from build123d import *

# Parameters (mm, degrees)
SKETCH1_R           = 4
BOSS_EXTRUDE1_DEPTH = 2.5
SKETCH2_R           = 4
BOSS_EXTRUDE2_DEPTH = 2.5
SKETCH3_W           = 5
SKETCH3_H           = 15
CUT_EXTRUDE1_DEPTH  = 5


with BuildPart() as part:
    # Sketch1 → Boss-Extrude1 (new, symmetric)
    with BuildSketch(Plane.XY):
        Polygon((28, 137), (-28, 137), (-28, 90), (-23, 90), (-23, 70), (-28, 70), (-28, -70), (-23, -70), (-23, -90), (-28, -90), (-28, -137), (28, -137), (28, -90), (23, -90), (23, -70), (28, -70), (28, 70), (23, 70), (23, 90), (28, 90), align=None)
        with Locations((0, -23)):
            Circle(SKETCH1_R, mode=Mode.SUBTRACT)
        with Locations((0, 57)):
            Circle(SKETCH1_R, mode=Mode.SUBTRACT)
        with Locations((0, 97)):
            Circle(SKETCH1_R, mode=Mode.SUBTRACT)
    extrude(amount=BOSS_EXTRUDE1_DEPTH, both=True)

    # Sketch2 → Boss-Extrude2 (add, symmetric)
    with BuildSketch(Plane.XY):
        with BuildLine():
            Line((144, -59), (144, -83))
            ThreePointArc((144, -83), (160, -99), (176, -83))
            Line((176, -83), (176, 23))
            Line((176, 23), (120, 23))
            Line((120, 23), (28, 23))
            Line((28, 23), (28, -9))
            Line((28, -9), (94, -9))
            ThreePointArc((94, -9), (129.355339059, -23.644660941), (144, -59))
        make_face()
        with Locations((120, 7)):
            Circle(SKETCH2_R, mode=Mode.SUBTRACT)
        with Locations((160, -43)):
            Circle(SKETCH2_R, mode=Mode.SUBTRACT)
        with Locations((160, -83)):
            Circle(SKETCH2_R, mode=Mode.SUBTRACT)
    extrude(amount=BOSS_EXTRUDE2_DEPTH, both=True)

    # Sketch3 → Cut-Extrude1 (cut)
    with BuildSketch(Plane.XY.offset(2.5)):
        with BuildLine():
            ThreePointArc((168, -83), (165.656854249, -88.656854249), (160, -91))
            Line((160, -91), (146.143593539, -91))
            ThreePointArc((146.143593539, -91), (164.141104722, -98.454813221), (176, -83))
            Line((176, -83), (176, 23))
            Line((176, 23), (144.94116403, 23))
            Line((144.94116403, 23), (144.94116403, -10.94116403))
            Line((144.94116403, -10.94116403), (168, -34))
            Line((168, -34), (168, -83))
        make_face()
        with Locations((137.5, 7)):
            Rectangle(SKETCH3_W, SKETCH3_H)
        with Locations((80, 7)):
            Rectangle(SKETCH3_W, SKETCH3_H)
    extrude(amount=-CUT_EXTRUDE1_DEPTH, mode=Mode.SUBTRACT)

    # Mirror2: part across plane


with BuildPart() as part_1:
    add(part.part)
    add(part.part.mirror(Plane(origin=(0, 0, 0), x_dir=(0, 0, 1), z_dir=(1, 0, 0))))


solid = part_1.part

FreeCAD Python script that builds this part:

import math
import FreeCAD as App
import Part
import Sketcher
from FreeCAD import Vector
Q = App.Units.Quantity


def add_polygon(sketch, points):
    """Adds a closed chain of lines whose ends are joined by coincident constraints."""
    first, n = sketch.GeometryCount, len(points)
    for a, b in zip(points, points[1:] + points[:1]):
        sketch.addGeometry(Part.LineSegment(App.Vector(*a, 0), App.Vector(*b, 0)), False)
    for i in range(n):
        sketch.addConstraint(Sketcher.Constraint("Coincident", first + i, 2, first + (i + 1) % n, 1))

doc = App.newDocument("Part")
params = doc.addObject("Spreadsheet::Sheet", "Params")
for row, (alias, value) in enumerate([
    ("sketch1_diameter", "8 mm"),
    ("sketch1_width", "56 mm"),
    ("sketch1_width2", "5 mm"),
    ("sketch1_height", "47 mm"),
    ("sketch1_height2", "20 mm"),
    ("pad1_length", "5 mm"),
    ("sketch2_diameter", "8 mm"),
    ("sketch2_radius", "16 mm"),
    ("sketch2_radius2", "50 mm"),
    ("sketch2_width", "148 mm"),
    ("sketch2_height", "24 mm"),
    ("pad2_length", "5 mm"),
    ("sketch3_radius", "8 mm"),
    ("sketch3_radius2", "16 mm"),
    ("sketch3_width", "5 mm"),
    ("sketch3_height", "106 mm"),
    ("sketch3_height2", "49 mm"),
    ("pocket1_length", "5 mm"),
], start=1):
    params.set(f"A{row}", alias)
    params.set(f"B{row}", "=" + value)
    params.setAlias(f"B{row}", alias)

body = doc.addObject("PartDesign::Body", "Body")

# Sketch on XY plane
sketch1 = doc.addObject("Sketcher::SketchObject", "Sketch")
body.addObject(sketch1)
sketch1.AttachmentSupport = (doc.XY_Plane, [""])
sketch1.MapMode = "FlatFace"
add_polygon(sketch1, [(28, 137), (-28, 137), (-28, 90), (-23, 90), (-23, 70), (-28, 70), (-28, -70), (-23, -70), (-23, -90), (-28, -90), (-28, -137), (28, -137), (28, -90), (23, -90), (23, -70), (28, -70), (28, 70), (23, 70), (23, 90), (28, 90)])  # lines 0-19
sketch1.addGeometry(Part.Circle(Vector(0, -23, 0), Vector(0, 0, 1), 4), False)  # 20
sketch1.addGeometry(Part.Circle(Vector(0, 57, 0), Vector(0, 0, 1), 4), False)  # 21
sketch1.addGeometry(Part.Circle(Vector(0, 97, 0), Vector(0, 0, 1), 4), False)  # 22
sketch1.addConstraint([
    Sketcher.Constraint("Horizontal", 0),
    Sketcher.Constraint("Vertical", 1),
    Sketcher.Constraint("Horizontal", 2),
    Sketcher.Constraint("Vertical", 3),
    Sketcher.Constraint("Horizontal", 4),
    Sketcher.Constraint("Vertical", 5),
    Sketcher.Constraint("Horizontal", 6),
    Sketcher.Constraint("Vertical", 7),
    Sketcher.Constraint("Horizontal", 8),
    Sketcher.Constraint("Vertical", 9),
    Sketcher.Constraint("Horizontal", 10),
    Sketcher.Constraint("Vertical", 11),
    Sketcher.Constraint("Horizontal", 12),
    Sketcher.Constraint("Vertical", 13),
    Sketcher.Constraint("Horizontal", 14),
    Sketcher.Constraint("Vertical", 15),
    Sketcher.Constraint("Horizontal", 16),
    Sketcher.Constraint("Vertical", 17),
    Sketcher.Constraint("Horizontal", 18),
    Sketcher.Constraint("Vertical", 19),
    Sketcher.Constraint("Equal", 20, 21),
    Sketcher.Constraint("Equal", 21, 22),
    Sketcher.Constraint("Symmetric", 0, 2, 10, 2, -1, 1),
    Sketcher.Constraint("Symmetric", 2, 2, 12, 2, -1, 1),
    Sketcher.Constraint("Symmetric", 4, 2, 14, 2, -1, 1),
    Sketcher.Constraint("Symmetric", 6, 2, 16, 2, -1, 1),
    Sketcher.Constraint("Symmetric", 8, 2, 18, 2, -1, 1),
    Sketcher.Constraint("Symmetric", 8, 2, 11, 2, -2),
    Sketcher.Constraint("Symmetric", 6, 2, 13, 2, -2),
    Sketcher.Constraint("PointOnObject", 20, 3, -2),
    Sketcher.Constraint("PointOnObject", 21, 3, -2),
    Sketcher.Constraint("PointOnObject", 22, 3, -2),
    Sketcher.Constraint("Vertical", 1, 2, 4, 2),
    Sketcher.Constraint("Diameter", 20, 8.0),
    Sketcher.Constraint("DistanceX", 0, 2, 0, 1, 56.0),
    Sketcher.Constraint("DistanceX", 2, 1, 2, 2, 5.0),
    Sketcher.Constraint("DistanceY", 1, 2, 1, 1, 47.0),
    Sketcher.Constraint("DistanceY", 3, 2, 3, 1, 20.0),
    Sketcher.Constraint("DistanceY", 5, 2, 5, 1, 140.0),
    Sketcher.Constraint("DistanceY", 20, 3, -1, 1, 23.0),
    Sketcher.Constraint("DistanceY", -1, 1, 21, 3, 57.0),
    Sketcher.Constraint("DistanceY", -1, 1, 22, 3, 97.0),
])
sketch1.setExpression("Constraints[53]", "Params.sketch1_diameter")
sketch1.setExpression("Constraints[54]", "Params.sketch1_width")
sketch1.setExpression("Constraints[55]", "Params.sketch1_width2")
sketch1.setExpression("Constraints[56]", "Params.sketch1_height")
sketch1.setExpression("Constraints[57]", "Params.sketch1_height2")
pad1 = doc.addObject("PartDesign::Pad", "Pad")
body.addObject(pad1)
pad1.Profile = sketch1
pad1.setExpression("Length", "Params.pad1_length")
pad1.Midplane = True

# Sketch on XY plane
sketch2 = doc.addObject("Sketcher::SketchObject", "Sketch001")
body.addObject(sketch2)
sketch2.AttachmentSupport = (doc.XY_Plane, [""])
sketch2.MapMode = "FlatFace"
sketch2.addGeometry([
    Part.LineSegment(Vector(144, -59, 0), Vector(144, -83, 0)),  # 0
    Part.ArcOfCircle(Part.Circle(Vector(160, -83, 0), Vector(0, 0, 1), 16), math.radians(180), math.radians(360)),  # 1
    Part.LineSegment(Vector(176, -83, 0), Vector(176, 23, 0)),  # 2
    Part.LineSegment(Vector(176, 23, 0), Vector(28, 23, 0)),  # 3
    Part.LineSegment(Vector(28, 23, 0), Vector(28, -9, 0)),  # 4
    Part.LineSegment(Vector(28, -9, 0), Vector(94, -9, 0)),  # 5
    Part.ArcOfCircle(Part.Circle(Vector(94, -59, 0), Vector(0, 0, 1), 50), math.radians(0), math.radians(90)),  # 6
    Part.Circle(Vector(160, -83, 0), Vector(0, 0, 1), 4),  # 7
    Part.Circle(Vector(160, -43, 0), Vector(0, 0, 1), 4),  # 8
    Part.Circle(Vector(120, 7, 0), Vector(0, 0, 1), 4),  # 9
], False)
sketch2.addConstraint([
    Sketcher.Constraint("Tangent", 0, 2, 1, 1),
    Sketcher.Constraint("Tangent", 1, 2, 2, 1),
    Sketcher.Constraint("Coincident", 2, 2, 3, 1),
    Sketcher.Constraint("Coincident", 3, 2, 4, 1),
    Sketcher.Constraint("Coincident", 4, 2, 5, 1),
    Sketcher.Constraint("Tangent", 5, 2, 6, 2),
    Sketcher.Constraint("Tangent", 6, 1, 0, 1),
    Sketcher.Constraint("Vertical", 0),
    Sketcher.Constraint("Vertical", 2),
    Sketcher.Constraint("Horizontal", 3),
    Sketcher.Constraint("Vertical", 4),
    Sketcher.Constraint("Horizontal", 5),
    Sketcher.Constraint("Coincident", 7, 3, 1, 3),
    Sketcher.Constraint("Equal", 7, 8),
    Sketcher.Constraint("Equal", 8, 9),
    Sketcher.Constraint("Vertical", 7, 3, 8, 3),
    Sketcher.Constraint("Diameter", 7, 8.0),
    Sketcher.Constraint("Radius", 1, 16.0),
    Sketcher.Constraint("Radius", 6, 50.0),
    Sketcher.Constraint("DistanceX", 3, 2, 3, 1, 148.0),
    Sketcher.Constraint("DistanceY", 0, 2, 0, 1, 24.0),
    Sketcher.Constraint("DistanceY", 2, 1, 2, 2, 106.0),
    Sketcher.Constraint("DistanceX", -1, 1, 1, 3, 160.0),
    Sketcher.Constraint("DistanceY", 1, 3, -1, 1, 83.0),
    Sketcher.Constraint("DistanceY", 8, 3, -1, 1, 43.0),
    Sketcher.Constraint("DistanceX", -1, 1, 9, 3, 120.0),
    Sketcher.Constraint("DistanceY", -1, 1, 9, 3, 7.0),
])
sketch2.setExpression("Constraints[16]", "Params.sketch2_diameter")
sketch2.setExpression("Constraints[17]", "Params.sketch2_radius")
sketch2.setExpression("Constraints[18]", "Params.sketch2_radius2")
sketch2.setExpression("Constraints[19]", "Params.sketch2_width")
sketch2.setExpression("Constraints[20]", "Params.sketch2_height")
pad2 = doc.addObject("PartDesign::Pad", "Pad001")
body.addObject(pad2)
pad2.Profile = sketch2
pad2.setExpression("Length", "Params.pad2_length")
pad2.Midplane = True

# Sketch on XY plane
sketch3 = doc.addObject("Sketcher::SketchObject", "Sketch002")
body.addObject(sketch3)
sketch3.AttachmentSupport = (doc.XY_Plane, [""])
sketch3.MapMode = "FlatFace"
sketch3.AttachmentOffset = App.Placement(Vector(0, 0, 2.5), App.Rotation())
sketch3.addGeometry(Part.ArcOfCircle(Part.Circle(Vector(160, -83, 0), Vector(0, 0, 1), 8), math.radians(-90), math.radians(0)), False)  # 0
sketch3.addGeometry(Part.LineSegment(Vector(160, -91, 0), Vector(146.143594, -91, 0)), False)  # 1
sketch3.addGeometry(Part.ArcOfCircle(Part.Circle(Vector(160, -83, 0), Vector(0, 0, 1), 16), math.radians(-150), math.radians(0)), False)  # 2
sketch3.addGeometry(Part.LineSegment(Vector(176, -83, 0), Vector(176, 23, 0)), False)  # 3
sketch3.addGeometry(Part.LineSegment(Vector(176, 23, 0), Vector(144.941164, 23, 0)), False)  # 4
sketch3.addGeometry(Part.LineSegment(Vector(144.941164, 23, 0), Vector(144.941164, -10.941164, 0)), False)  # 5
sketch3.addGeometry(Part.LineSegment(Vector(144.941164, -10.941164, 0), Vector(168, -34, 0)), False)  # 6
sketch3.addGeometry(Part.LineSegment(Vector(168, -34, 0), Vector(168, -83, 0)), False)  # 7
add_polygon(sketch3, [(135, 14.5), (135, -0.5), (140, -0.5), (140, 14.5)])  # lines 8-11
add_polygon(sketch3, [(77.5, 14.5), (77.5, -0.5), (82.5, -0.5), (82.5, 14.5)])  # lines 12-15
sketch3.addConstraint([
    Sketcher.Constraint("Tangent", 0, 1, 1, 1),
    Sketcher.Constraint("Coincident", 1, 2, 2, 1),
    Sketcher.Constraint("Tangent", 2, 2, 3, 1),
    Sketcher.Constraint("Coincident", 3, 2, 4, 1),
    Sketcher.Constraint("Coincident", 4, 2, 5, 1),
    Sketcher.Constraint("Coincident", 5, 2, 6, 1),
    Sketcher.Constraint("Coincident", 6, 2, 7, 1),
    Sketcher.Constraint("Tangent", 7, 2, 0, 2),
    Sketcher.Constraint("Horizontal", 1),
    Sketcher.Constraint("Vertical", 3),
    Sketcher.Constraint("Horizontal", 4),
    Sketcher.Constraint("Vertical", 5),
    Sketcher.Constraint("Vertical", 7),
    Sketcher.Constraint("Vertical", 8),
    Sketcher.Constraint("Horizontal", 9),
    Sketcher.Constraint("Vertical", 10),
    Sketcher.Constraint("Horizontal", 11),
    Sketcher.Constraint("Vertical", 12),
    Sketcher.Constraint("Horizontal", 13),
    Sketcher.Constraint("Vertical", 14),
    Sketcher.Constraint("Horizontal", 15),
    Sketcher.Constraint("Coincident", 2, 3, 0, 3),
    Sketcher.Constraint("Horizontal", 9, 2, 12, 2),
    Sketcher.Constraint("Horizontal", 11, 2, 14, 2),
    Sketcher.Constraint("Equal", 11, 13),
    Sketcher.Constraint("Radius", 0, 8.0),
    Sketcher.Constraint("Radius", 2, 16.0),
    Sketcher.Constraint("DistanceX", 9, 1, 9, 2, 5.0),
    Sketcher.Constraint("DistanceY", 3, 1, 3, 2, 106.0),
    Sketcher.Constraint("DistanceY", 7, 2, 7, 1, 49.0),
    Sketcher.Constraint("DistanceY", 8, 2, 8, 1, 15.0),
    Sketcher.Constraint("Angle", 6, Q("-45 deg")),
    Sketcher.Constraint("DistanceX", -1, 1, 0, 3, 160.0),
    Sketcher.Constraint("DistanceY", 0, 3, -1, 1, 83.0),
    Sketcher.Constraint("DistanceX", -1, 1, 8, 2, 135.0),
    Sketcher.Constraint("DistanceY", 8, 2, -1, 1, 0.5),
    Sketcher.Constraint("DistanceX", -1, 1, 12, 2, 77.5),
    Sketcher.Constraint("Distance", 6, 32.610119),
])
sketch3.setExpression("Constraints[33]", "Params.sketch3_radius")
sketch3.setExpression("Constraints[34]", "Params.sketch3_radius2")
sketch3.setExpression("Constraints[35]", "Params.sketch3_width")
sketch3.setExpression("Constraints[36]", "Params.sketch3_height")
sketch3.setExpression("Constraints[37]", "Params.sketch3_height2")
pocket1 = doc.addObject("PartDesign::Pocket", "Pocket")
body.addObject(pocket1)
pocket1.Profile = sketch3
pocket1.setExpression("Length", "Params.pocket1_length")
body2 = doc.addObject("PartDesign::Body", "Body001")
doc.recompute()

body2.BaseFeature = body
doc.recompute()

mirroring = doc.addObject("Part::Mirroring", "Mirroring")
mirroring.Source = body
mirroring.Base = Vector(0, 0, 0)
mirroring.Normal = Vector(1, 0, 0)
body3 = doc.addObject("PartDesign::Body", "Body002")
body3.BaseFeature = mirroring
boolean = doc.addObject("PartDesign::Boolean", "Boolean")
body2.addObject(boolean)
boolean.Type = "Fuse"
boolean.addObjects([body3])
doc.recompute()
mirroring.Visibility = False

doc.recompute()
